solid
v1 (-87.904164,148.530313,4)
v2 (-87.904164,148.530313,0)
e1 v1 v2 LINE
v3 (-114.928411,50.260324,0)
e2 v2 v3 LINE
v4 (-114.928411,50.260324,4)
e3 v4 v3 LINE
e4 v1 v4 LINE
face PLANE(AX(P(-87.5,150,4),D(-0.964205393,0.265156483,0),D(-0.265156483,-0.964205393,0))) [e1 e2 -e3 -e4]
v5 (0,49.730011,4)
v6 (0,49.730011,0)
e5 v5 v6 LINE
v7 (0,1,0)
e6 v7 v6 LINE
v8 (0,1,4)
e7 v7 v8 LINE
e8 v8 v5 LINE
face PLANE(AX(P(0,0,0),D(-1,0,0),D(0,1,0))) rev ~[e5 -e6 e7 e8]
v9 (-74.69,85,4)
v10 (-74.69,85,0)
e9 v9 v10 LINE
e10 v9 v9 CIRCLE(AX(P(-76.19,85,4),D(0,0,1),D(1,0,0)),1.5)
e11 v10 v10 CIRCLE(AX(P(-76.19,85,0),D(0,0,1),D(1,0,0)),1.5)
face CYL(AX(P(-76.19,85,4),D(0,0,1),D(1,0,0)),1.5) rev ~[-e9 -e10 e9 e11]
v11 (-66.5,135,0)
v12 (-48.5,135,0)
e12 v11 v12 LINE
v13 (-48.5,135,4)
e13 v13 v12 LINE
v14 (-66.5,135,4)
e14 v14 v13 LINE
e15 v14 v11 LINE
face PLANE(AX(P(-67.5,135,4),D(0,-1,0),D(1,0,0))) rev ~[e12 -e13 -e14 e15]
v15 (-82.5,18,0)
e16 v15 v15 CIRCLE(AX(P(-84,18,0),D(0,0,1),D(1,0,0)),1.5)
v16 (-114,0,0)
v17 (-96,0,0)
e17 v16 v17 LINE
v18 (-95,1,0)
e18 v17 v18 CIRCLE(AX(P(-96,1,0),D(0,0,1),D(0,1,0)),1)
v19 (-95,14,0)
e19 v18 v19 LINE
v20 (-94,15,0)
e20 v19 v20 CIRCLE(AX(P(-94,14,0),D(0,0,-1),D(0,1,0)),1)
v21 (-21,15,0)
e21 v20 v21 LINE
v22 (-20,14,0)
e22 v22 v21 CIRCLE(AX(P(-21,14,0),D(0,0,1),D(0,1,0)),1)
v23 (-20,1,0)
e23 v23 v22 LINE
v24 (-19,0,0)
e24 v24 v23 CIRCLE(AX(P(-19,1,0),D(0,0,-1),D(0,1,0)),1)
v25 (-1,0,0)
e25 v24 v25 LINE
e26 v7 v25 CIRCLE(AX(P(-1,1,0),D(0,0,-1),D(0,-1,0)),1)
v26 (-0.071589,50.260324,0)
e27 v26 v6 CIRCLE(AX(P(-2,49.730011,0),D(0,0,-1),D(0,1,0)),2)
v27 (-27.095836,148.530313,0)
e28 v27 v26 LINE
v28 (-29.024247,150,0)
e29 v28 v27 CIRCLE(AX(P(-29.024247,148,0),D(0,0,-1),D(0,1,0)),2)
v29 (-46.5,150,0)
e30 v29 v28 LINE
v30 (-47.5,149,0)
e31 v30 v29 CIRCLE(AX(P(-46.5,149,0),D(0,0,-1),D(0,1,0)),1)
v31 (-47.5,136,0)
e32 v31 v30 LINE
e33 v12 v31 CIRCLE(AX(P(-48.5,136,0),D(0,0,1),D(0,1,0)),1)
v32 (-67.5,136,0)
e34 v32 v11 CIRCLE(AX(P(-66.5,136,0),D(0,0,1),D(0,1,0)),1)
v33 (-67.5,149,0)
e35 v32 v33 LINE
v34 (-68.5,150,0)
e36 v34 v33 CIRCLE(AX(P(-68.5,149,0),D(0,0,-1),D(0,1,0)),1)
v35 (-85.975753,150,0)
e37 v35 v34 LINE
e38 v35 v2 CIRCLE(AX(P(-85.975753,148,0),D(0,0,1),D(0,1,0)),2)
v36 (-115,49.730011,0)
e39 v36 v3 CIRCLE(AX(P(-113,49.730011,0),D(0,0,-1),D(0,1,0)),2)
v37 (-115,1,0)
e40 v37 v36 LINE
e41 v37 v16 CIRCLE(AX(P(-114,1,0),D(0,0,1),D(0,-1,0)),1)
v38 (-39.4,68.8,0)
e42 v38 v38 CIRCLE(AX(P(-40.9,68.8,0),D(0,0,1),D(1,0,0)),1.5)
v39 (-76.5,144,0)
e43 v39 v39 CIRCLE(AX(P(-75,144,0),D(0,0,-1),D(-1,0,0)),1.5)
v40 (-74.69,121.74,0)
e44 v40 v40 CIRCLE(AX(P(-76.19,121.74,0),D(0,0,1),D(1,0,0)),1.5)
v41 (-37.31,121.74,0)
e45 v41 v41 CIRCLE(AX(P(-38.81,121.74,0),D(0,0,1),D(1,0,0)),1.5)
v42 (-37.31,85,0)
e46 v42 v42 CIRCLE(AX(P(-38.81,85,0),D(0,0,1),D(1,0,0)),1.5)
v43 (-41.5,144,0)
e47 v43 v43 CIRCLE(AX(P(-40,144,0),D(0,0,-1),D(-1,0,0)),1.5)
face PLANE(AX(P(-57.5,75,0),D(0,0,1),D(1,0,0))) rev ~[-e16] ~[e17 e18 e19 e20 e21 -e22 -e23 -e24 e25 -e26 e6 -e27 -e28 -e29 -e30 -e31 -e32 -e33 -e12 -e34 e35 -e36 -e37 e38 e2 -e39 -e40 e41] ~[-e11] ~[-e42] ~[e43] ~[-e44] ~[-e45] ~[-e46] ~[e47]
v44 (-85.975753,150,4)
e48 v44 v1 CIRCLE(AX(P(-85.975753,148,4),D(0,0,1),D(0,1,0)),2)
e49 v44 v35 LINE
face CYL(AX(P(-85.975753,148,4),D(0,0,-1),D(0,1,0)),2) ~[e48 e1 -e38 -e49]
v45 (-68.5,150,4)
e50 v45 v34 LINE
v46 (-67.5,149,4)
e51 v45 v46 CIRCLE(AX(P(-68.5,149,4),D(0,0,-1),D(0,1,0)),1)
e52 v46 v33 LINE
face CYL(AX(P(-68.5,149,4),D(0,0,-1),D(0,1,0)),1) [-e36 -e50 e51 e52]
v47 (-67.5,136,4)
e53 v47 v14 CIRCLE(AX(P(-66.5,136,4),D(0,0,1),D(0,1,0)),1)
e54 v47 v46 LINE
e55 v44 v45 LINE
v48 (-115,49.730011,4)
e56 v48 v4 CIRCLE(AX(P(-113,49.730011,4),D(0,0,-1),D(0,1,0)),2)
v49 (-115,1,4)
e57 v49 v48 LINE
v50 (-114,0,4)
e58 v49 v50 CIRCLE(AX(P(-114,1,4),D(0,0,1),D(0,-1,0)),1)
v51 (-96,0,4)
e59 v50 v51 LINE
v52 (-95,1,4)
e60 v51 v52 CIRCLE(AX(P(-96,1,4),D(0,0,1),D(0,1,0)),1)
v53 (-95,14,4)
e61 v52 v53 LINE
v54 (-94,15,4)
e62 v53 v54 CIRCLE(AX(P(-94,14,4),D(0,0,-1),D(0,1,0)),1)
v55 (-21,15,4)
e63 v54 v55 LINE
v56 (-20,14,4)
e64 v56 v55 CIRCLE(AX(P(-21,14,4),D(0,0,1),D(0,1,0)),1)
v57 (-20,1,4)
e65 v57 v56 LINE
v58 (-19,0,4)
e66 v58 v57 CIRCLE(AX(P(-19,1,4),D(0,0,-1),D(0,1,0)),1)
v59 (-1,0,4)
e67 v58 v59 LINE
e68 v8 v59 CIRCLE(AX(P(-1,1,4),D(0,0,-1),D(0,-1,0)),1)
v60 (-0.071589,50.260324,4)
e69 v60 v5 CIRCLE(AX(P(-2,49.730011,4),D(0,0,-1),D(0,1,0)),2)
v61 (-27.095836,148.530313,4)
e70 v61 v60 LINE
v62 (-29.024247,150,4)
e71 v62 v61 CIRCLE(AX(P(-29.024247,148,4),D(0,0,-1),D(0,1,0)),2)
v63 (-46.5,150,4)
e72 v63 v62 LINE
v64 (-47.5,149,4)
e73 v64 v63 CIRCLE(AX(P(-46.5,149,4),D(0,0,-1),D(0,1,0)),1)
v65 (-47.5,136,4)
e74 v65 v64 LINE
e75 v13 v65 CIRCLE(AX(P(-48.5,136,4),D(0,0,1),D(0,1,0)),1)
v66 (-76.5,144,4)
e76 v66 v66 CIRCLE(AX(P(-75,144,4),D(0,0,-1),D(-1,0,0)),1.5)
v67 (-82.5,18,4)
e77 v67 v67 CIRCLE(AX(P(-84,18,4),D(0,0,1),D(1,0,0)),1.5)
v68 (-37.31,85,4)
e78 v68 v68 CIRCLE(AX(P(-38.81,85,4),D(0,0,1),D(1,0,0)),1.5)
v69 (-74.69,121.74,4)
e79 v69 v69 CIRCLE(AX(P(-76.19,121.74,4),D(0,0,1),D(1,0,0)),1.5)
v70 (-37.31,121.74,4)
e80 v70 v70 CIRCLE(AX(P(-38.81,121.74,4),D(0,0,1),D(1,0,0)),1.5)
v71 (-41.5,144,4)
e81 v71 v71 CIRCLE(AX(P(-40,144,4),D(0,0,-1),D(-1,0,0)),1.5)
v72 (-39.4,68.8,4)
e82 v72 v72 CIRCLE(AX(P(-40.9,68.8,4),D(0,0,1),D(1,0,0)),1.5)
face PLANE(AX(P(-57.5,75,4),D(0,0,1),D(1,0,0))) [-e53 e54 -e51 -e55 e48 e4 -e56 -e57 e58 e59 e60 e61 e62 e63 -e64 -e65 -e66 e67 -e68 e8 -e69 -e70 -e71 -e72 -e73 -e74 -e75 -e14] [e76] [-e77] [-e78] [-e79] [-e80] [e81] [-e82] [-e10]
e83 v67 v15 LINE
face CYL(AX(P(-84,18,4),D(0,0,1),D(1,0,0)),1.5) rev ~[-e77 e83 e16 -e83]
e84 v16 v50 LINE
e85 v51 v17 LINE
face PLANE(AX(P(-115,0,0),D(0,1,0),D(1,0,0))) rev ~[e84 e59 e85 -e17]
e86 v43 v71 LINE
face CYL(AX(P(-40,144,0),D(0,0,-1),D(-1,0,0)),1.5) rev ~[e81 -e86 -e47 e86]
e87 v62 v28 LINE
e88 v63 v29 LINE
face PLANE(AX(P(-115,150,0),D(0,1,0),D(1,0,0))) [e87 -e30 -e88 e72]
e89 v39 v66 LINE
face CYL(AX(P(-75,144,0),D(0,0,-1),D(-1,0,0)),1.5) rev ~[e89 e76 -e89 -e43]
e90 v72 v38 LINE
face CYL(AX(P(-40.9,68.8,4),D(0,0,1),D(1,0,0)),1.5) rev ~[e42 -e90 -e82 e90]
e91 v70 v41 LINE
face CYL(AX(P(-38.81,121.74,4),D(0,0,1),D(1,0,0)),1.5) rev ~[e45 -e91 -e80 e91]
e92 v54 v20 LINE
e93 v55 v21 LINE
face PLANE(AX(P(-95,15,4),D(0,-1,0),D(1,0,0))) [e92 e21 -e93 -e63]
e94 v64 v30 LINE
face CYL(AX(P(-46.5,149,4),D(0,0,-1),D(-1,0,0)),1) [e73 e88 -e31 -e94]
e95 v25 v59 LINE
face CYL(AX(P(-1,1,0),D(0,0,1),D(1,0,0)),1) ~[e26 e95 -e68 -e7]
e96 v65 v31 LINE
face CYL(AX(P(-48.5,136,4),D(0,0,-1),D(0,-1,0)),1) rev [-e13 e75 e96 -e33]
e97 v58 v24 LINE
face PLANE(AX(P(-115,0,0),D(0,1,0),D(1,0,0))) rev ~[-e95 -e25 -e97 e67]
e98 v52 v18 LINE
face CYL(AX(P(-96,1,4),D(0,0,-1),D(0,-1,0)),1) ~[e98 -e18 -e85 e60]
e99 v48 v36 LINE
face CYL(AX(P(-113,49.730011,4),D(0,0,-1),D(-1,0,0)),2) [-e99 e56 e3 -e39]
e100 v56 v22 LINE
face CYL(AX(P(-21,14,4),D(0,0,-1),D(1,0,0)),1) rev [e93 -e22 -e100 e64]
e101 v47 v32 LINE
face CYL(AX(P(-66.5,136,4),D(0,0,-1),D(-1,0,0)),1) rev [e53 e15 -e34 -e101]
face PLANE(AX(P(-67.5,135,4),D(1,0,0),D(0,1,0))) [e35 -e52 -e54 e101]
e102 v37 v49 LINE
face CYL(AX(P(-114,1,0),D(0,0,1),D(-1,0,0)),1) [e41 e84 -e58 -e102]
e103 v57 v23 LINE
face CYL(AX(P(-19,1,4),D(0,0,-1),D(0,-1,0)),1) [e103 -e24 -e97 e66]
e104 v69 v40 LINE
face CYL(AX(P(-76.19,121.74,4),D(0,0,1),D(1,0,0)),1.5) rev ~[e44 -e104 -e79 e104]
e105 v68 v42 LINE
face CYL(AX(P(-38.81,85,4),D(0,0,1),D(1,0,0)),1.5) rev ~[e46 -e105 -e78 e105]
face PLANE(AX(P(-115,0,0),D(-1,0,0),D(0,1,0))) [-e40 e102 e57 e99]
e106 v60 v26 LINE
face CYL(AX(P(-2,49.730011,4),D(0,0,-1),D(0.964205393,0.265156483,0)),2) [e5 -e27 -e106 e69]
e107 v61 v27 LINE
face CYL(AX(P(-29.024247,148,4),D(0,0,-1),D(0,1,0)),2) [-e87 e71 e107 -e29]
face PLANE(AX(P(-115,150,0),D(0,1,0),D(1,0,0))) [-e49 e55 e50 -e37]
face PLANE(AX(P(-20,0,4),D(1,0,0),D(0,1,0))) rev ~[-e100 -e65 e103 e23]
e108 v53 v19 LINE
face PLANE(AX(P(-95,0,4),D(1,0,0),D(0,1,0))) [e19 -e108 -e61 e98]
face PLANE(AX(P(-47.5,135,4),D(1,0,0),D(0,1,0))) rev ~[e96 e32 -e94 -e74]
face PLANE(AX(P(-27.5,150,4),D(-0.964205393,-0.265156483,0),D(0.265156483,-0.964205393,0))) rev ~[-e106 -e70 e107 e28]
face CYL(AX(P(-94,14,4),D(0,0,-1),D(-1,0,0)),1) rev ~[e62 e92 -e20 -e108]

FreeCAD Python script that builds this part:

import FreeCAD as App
import Part
import Sketcher
from FreeCAD import Vector
Q = App.Units.Quantity


def edges_at(feature, points):
    """Names of the edges that pass closest to the given points."""
    edges = feature.Shape.Edges
    near = lambda p: min(range(len(edges)), key=lambda i: edges[i].distToShape(Part.Vertex(*p))[0])
    return sorted({f"Edge{near(p) + 1}" for p in points})

doc = App.newDocument("Part")
body = doc.addObject("PartDesign::Body", "Body")

sketch1 = doc.addObject("Sketcher::SketchObject", "Sketch")
body.addObject(sketch1)
sketch1.AttachmentSupport = (doc.XY_Plane, [""])
sketch1.MapMode = "FlatFace"
sketch1.addGeometry(Part.LineSegment(Vector(-115, 150, 0), Vector(-115, 0, 0)), False)
sketch1.addGeometry(Part.LineSegment(Vector(-115, 0, 0), Vector(0, 0, 0)), False)
sketch1.addGeometry(Part.LineSegment(Vector(0, 0, 0), Vector(0, 150, 0)), False)
sketch1.addGeometry(Part.LineSegment(Vector(0, 150, 0), Vector(-115, 150, 0)), False)
sketch1.addConstraint(Sketcher.Constraint("Coincident", 0, 2, 1, 1))
sketch1.addConstraint(Sketcher.Constraint("Coincident", 1, 2, 2, 1))
sketch1.addConstraint(Sketcher.Constraint("Coincident", 2, 2, 3, 1))
sketch1.addConstraint(Sketcher.Constraint("Coincident", 3, 2, 0, 1))
sketch1.addConstraint(Sketcher.Constraint("Vertical", 0))
sketch1.addConstraint(Sketcher.Constraint("Horizontal", 1))
sketch1.addConstraint(Sketcher.Constraint("Vertical", 2))
sketch1.addConstraint(Sketcher.Constraint("Horizontal", 3))
sketch1.addConstraint(Sketcher.Constraint("Coincident", 1, 2, -1, 1))
sketch1.addConstraint(Sketcher.Constraint("DistanceX", 1, 1, 1, 2, Q("115 mm")))
sketch1.addConstraint(Sketcher.Constraint("DistanceY", 0, 2, 0, 1, Q("150 mm")))
pad1 = doc.addObject("PartDesign::Pad", "Pad")
body.addObject(pad1)
pad1.Profile = sketch1
pad1.Length = 4

sketch2 = doc.addObject("Sketcher::SketchObject", "Sketch001")
body.addObject(sketch2)
sketch2.AttachmentSupport = (doc.XY_Plane, [""])
sketch2.MapMode = "FlatFace"
sketch2.AttachmentOffset = App.Placement(Vector(0, 0, 4), App.Rotation())
sketch2.addGeometry(Part.LineSegment(Vector(-95, 15, 0), Vector(-95, 0, 0)), False)
sketch2.addGeometry(Part.LineSegment(Vector(-95, 0, 0), Vector(-20, 0, 0)), False)
sketch2.addGeometry(Part.LineSegment(Vector(-20, 0, 0), Vector(-20, 15, 0)), False)
sketch2.addGeometry(Part.LineSegment(Vector(-20, 15, 0), Vector(-95, 15, 0)), False)
sketch2.addConstraint(Sketcher.Constraint("Coincident", 0, 2, 1, 1))
sketch2.addConstraint(Sketcher.Constraint("Coincident", 1, 2, 2, 1))
sketch2.addConstraint(Sketcher.Constraint("Coincident", 2, 2, 3, 1))
sketch2.addConstraint(Sketcher.Constraint("Coincident", 3, 2, 0, 1))
sketch2.addConstraint(Sketcher.Constraint("Vertical", 0))
sketch2.addConstraint(Sketcher.Constraint("Horizontal", 1))
sketch2.addConstraint(Sketcher.Constraint("Vertical", 2))
sketch2.addConstraint(Sketcher.Constraint("Horizontal", 3))
sketch2.addConstraint(Sketcher.Constraint("PointOnObject", 0, 2, -1))
sketch2.addConstraint(Sketcher.Constraint("DistanceX", 1, 1, 1, 2, Q("75 mm")))
sketch2.addConstraint(Sketcher.Constraint("DistanceY", 0, 2, 0, 1, Q("15 mm")))
sketch2.addConstraint(Sketcher.Constraint("DistanceX", 0, 2, -1, 1, Q("95 mm")))
pocket1 = doc.addObject("PartDesign::Pocket", "Pocket")
body.addObject(pocket1)
pocket1.Profile = sketch2
pocket1.Type = "ThroughAll"
doc.recompute()

fillet = doc.addObject("PartDesign::Fillet", "Fillet")
body.addObject(fillet)
fillet.Base = (pocket1, edges_at(pocket1, [
    (-95, 0, 2),
    (-95, 15, 2),
    (-20, 15, 2),
    (-20, 0, 2),
    (0, 0, 2),
    (-115, 0, 2),
]))
fillet.Radius = 1

sketch3 = doc.addObject("Sketcher::SketchObject", "Sketch002")
body.addObject(sketch3)
sketch3.AttachmentSupport = (doc.XY_Plane, [""])
sketch3.MapMode = "FlatFace"
sketch3.AttachmentOffset = App.Placement(Vector(0, 0, 4), App.Rotation())
sketch3.addGeometry(Part.LineSegment(Vector(-67.5, 150, 0), Vector(-67.5, 135, 0)), False)
sketch3.addGeometry(Part.LineSegment(Vector(-67.5, 135, 0), Vector(-47.5, 135, 0)), False)
sketch3.addGeometry(Part.LineSegment(Vector(-47.5, 135, 0), Vector(-47.5, 150, 0)), False)
sketch3.addGeometry(Part.LineSegment(Vector(-47.5, 150, 0), Vector(-67.5, 150, 0)), False)
sketch3.addConstraint(Sketcher.Constraint("Coincident", 0, 2, 1, 1))
sketch3.addConstraint(Sketcher.Constraint("Coincident", 1, 2, 2, 1))
sketch3.addConstraint(Sketcher.Constraint("Coincident", 2, 2, 3, 1))
sketch3.addConstraint(Sketcher.Constraint("Coincident", 3, 2, 0, 1))
sketch3.addConstraint(Sketcher.Constraint("Vertical", 0))
sketch3.addConstraint(Sketcher.Constraint("Horizontal", 1))
sketch3.addConstraint(Sketcher.Constraint("Vertical", 2))
sketch3.addConstraint(Sketcher.Constraint("Horizontal", 3))
sketch3.addConstraint(Sketcher.Constraint("DistanceX", 1, 1, 1, 2, Q("20 mm")))
sketch3.addConstraint(Sketcher.Constraint("DistanceY", 0, 2, 0, 1, Q("15 mm")))
sketch3.addConstraint(Sketcher.Constraint("DistanceY", -1, 1, 0, 2, Q("135 mm")))
sketch3.addConstraint(Sketcher.Constraint("DistanceX", 0, 2, -1, 1, Q("67.5 mm")))
pocket2 = doc.addObject("PartDesign::Pocket", "Pocket001")
body.addObject(pocket2)
pocket2.Profile = sketch3
pocket2.Type = "ThroughAll"
doc.recompute()

fillet2 = doc.addObject("PartDesign::Fillet", "Fillet001")
body.addObject(fillet2)
fillet2.Base = (pocket2, edges_at(pocket2, [
    (-67.5, 135, 2),
    (-67.5, 150, 2),
    (-47.5, 150, 2),
    (-47.5, 135, 2),
]))
fillet2.Radius = 1

sketch4 = doc.addObject("Sketcher::SketchObject", "Sketch003")
body.addObject(sketch4)
sketch4.AttachmentSupport = (doc.XY_Plane, [""])
sketch4.MapMode = "FlatFace"
sketch4.AttachmentOffset = App.Placement(Vector(0, 0, 4), App.Rotation())
sketch4.addGeometry(Part.LineSegment(Vector(-115, 50, 0), Vector(-87.5, 150, 0)), False)
sketch4.addGeometry(Part.LineSegment(Vector(-87.5, 150, 0), Vector(-115, 150, 0)), False)
sketch4.addGeometry(Part.LineSegment(Vector(-115, 150, 0), Vector(-115, 50, 0)), False)
sketch4.addGeometry(Part.LineSegment(Vector(0, 50, 0), Vector(0, 150, 0)), False)
sketch4.addGeometry(Part.LineSegment(Vector(0, 150, 0), Vector(-27.5, 150, 0)), False)
sketch4.addGeometry(Part.LineSegment(Vector(-27.5, 150, 0), Vector(0, 50, 0)), False)
sketch4.addConstraint(Sketcher.Constraint("Coincident", 0, 2, 1, 1))
sketch4.addConstraint(Sketcher.Constraint("Coincident", 1, 2, 2, 1))
sketch4.addConstraint(Sketcher.Constraint("Coincident", 2, 2, 0, 1))
sketch4.addConstraint(Sketcher.Constraint("Coincident", 3, 2, 4, 1))
sketch4.addConstraint(Sketcher.Constraint("Coincident", 4, 2, 5, 1))
sketch4.addConstraint(Sketcher.Constraint("Coincident", 5, 2, 3, 1))
sketch4.addConstraint(Sketcher.Constraint("Horizontal", 1))
sketch4.addConstraint(Sketcher.Constraint("Vertical", 2))
sketch4.addConstraint(Sketcher.Constraint("Vertical", 3))
sketch4.addConstraint(Sketcher.Constraint("Horizontal", 4))
sketch4.addConstraint(Sketcher.Constraint("PointOnObject", 3, 2, -2))
sketch4.addConstraint(Sketcher.Constraint("Horizontal", 1, 2, 3, 2))
sketch4.addConstraint(Sketcher.Constraint("Horizontal", 2, 2, 5, 2))
sketch4.addConstraint(Sketcher.Constraint("Equal", 1, 4))
sketch4.addConstraint(Sketcher.Constraint("DistanceY", 2, 2, 2, 1, Q("100 mm")))
sketch4.addConstraint(Sketcher.Constraint("DistanceX", 1, 2, 1, 1, Q("27.5 mm")))
sketch4.addConstraint(Sketcher.Constraint("DistanceY", -1, 1, 0, 2, Q("150 mm")))
sketch4.addConstraint(Sketcher.Constraint("DistanceX", 1, 2, -1, 1, Q("115 mm")))
pocket3 = doc.addObject("PartDesign::Pocket", "Pocket002")
body.addObject(pocket3)
pocket3.Profile = sketch4
pocket3.Type = "ThroughAll"
doc.recompute()

fillet3 = doc.addObject("PartDesign::Fillet", "Fillet002")
body.addObject(fillet3)
fillet3.Base = (pocket3, edges_at(pocket3, [
    (0, 50, 2),
    (-27.5, 150, 2),
    (-87.5, 150, 2),
    (-115, 50, 2),
]))
fillet3.Radius = 2

sketch5 = doc.addObject("Sketcher::SketchObject", "Sketch004")
body.addObject(sketch5)
sketch5.AttachmentSupport = (doc.XY_Plane, [""])
sketch5.MapMode = "FlatFace"
sketch5.addGeometry(Part.Circle(Vector(-40, 144, 0), Vector(0, 0, 1), 1.5), False)
sketch5.addGeometry(Part.Circle(Vector(-75, 144, 0), Vector(0, 0, 1), 1.5), False)
sketch5.addConstraint(Sketcher.Constraint("Equal", 0, 1))
sketch5.addConstraint(Sketcher.Constraint("Horizontal", 0, 3, 1, 3))
sketch5.addConstraint(Sketcher.Constraint("Diameter", 0, Q("3 mm")))
sketch5.addConstraint(Sketcher.Constraint("DistanceX", 0, 3, -1, 1, Q("40 mm")))
sketch5.addConstraint(Sketcher.Constraint("DistanceY", -1, 1, 0, 3, Q("144 mm")))
sketch5.addConstraint(Sketcher.Constraint("DistanceX", 1, 3, -1, 1, Q("75 mm")))
pocket4 = doc.addObject("PartDesign::Pocket", "Pocket003")
body.addObject(pocket4)
pocket4.Profile = sketch5
pocket4.Type = "ThroughAll"
pocket4.Reversed = True

sketch6 = doc.addObject("Sketcher::SketchObject", "Sketch005")
body.addObject(sketch6)
sketch6.AttachmentSupport = (doc.XY_Plane, [""])
sketch6.MapMode = "FlatFace"
sketch6.AttachmentOffset = App.Placement(Vector(0, 0, 4), App.Rotation())
sketch6.addGeometry(Part.Circle(Vector(-76.19, 121.74, 0), Vector(0, 0, 1), 1.5), False)
sketch6.addGeometry(Part.Circle(Vector(-38.81, 121.74, 0), Vector(0, 0, 1), 1.5), False)
sketch6.addGeometry(Part.Circle(Vector(-76.19, 85, 0), Vector(0, 0, 1), 1.5), False)
sketch6.addGeometry(Part.Circle(Vector(-38.81, 85, 0), Vector(0, 0, 1), 1.5), False)
sketch6.addConstraint(Sketcher.Constraint("Equal", 0, 1))
sketch6.addConstraint(Sketcher.Constraint("Equal", 1, 2))
sketch6.addConstraint(Sketcher.Constraint("Equal", 2, 3))
sketch6.addConstraint(Sketcher.Constraint("Horizontal", 0, 3, 1, 3))
sketch6.addConstraint(Sketcher.Constraint("Horizontal", 2, 3, 3, 3))
sketch6.addConstraint(Sketcher.Constraint("Vertical", 0, 3, 2, 3))
sketch6.addConstraint(Sketcher.Constraint("Vertical", 1, 3, 3, 3))
sketch6.addConstraint(Sketcher.Constraint("Diameter", 0, Q("3 mm")))
sketch6.addConstraint(Sketcher.Constraint("DistanceY", -1, 1, 2, 3, Q("85 mm")))
sketch6.addConstraint(Sketcher.Constraint("DistanceX", 0, 3, -1, 1, Q("76.19 mm")))
sketch6.addConstraint(Sketcher.Constraint("DistanceY", -1, 1, 0, 3, Q("121.74 mm")))
sketch6.addConstraint(Sketcher.Constraint("DistanceX", 1, 3, -1, 1, Q("38.81 mm")))
pocket5 = doc.addObject("PartDesign::Pocket", "Pocket004")
body.addObject(pocket5)
pocket5.Profile = sketch6
pocket5.Type = "ThroughAll"

sketch7 = doc.addObject("Sketcher::SketchObject", "Sketch006")
body.addObject(sketch7)
sketch7.AttachmentSupport = (doc.XY_Plane, [""])
sketch7.MapMode = "FlatFace"
sketch7.AttachmentOffset = App.Placement(Vector(0, 0, 4), App.Rotation())
sketch7.addGeometry(Part.Circle(Vector(-84, 18, 0), Vector(0, 0, 1), 1.5), False)
sketch7.addGeometry(Part.Circle(Vector(-40.9, 68.8, 0), Vector(0, 0, 1), 1.5), False)
sketch7.addConstraint(Sketcher.Constraint("Equal", 0, 1))
sketch7.addConstraint(Sketcher.Constraint("Diameter", 0, Q("3 mm")))
sketch7.addConstraint(Sketcher.Constraint("DistanceX", 0, 3, -1, 1, Q("84 mm")))
sketch7.addConstraint(Sketcher.Constraint("DistanceY", -1, 1, 0, 3, Q("18 mm")))
sketch7.addConstraint(Sketcher.Constraint("DistanceX", 1, 3, -1, 1, Q("40.9 mm")))
sketch7.addConstraint(Sketcher.Constraint("DistanceY", -1, 1, 1, 3, Q("68.8 mm")))
pocket6 = doc.addObject("PartDesign::Pocket", "Pocket005")
body.addObject(pocket6)
pocket6.Profile = sketch7
pocket6.Type = "ThroughAll"

doc.recompute()
